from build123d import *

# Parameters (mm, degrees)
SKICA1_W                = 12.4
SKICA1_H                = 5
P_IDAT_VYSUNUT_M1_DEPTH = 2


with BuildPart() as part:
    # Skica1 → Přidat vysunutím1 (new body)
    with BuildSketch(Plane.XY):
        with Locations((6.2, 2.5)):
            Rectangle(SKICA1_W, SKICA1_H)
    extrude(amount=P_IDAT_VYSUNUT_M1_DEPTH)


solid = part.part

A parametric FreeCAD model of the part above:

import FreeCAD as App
import Part
import Sketcher

V = App.Vector

doc = App.newDocument("Part")
params = doc.addObject("Spreadsheet::Sheet", "Params")
for row, (alias, value) in enumerate([
    ("sketch1_height", "5 mm"),
    ("sketch1_width", "12.4 mm"),
    ("pad1_length", "2 mm"),
], start=1):
    params.set(f"A{row}", alias)
    params.set(f"B{row}", "=" + value)
    params.setAlias(f"B{row}", alias)

body = doc.addObject("PartDesign::Body", "Body")

# Sketch on XY plane
sketch1 = body.newObject("Sketcher::SketchObject", "Sketch")
sketch1.AttachmentSupport = (doc.getObject("XY_Plane"), [""])
sketch1.MapMode = "FlatFace"
sketch1.addGeometry([
    Part.LineSegment(V(0, 5, 0), V(0, 0, 0)),
    Part.LineSegment(V(0, 0, 0), V(12, 0, 0)),
    Part.LineSegment(V(12, 0, 0), V(12, 5, 0)),
    Part.LineSegment(V(12, 5, 0), V(0, 5, 0)),
], False)
sketch1.addConstraint([
    Sketcher.Constraint("Coincident", 0, 2, 1, 1),
    Sketcher.Constraint("Coincident", 1, 2, 2, 1),
    Sketcher.Constraint("Coincident", 2, 2, 3, 1),
    Sketcher.Constraint("Coincident", 3, 2, 0, 1),
    Sketcher.Constraint("Vertical", 0),
    Sketcher.Constraint("Horizontal", 1),
    Sketcher.Constraint("Vertical", 2),
    Sketcher.Constraint("Horizontal", 3),
    Sketcher.Constraint("Coincident", 0, 2, -1, 1),
    Sketcher.Constraint("DistanceY", 0, 2, 0, 1, 5.0),
    Sketcher.Constraint("DistanceX", 1, 1, 1, 2, 12.4),
])
sketch1.setExpression("Constraints[9]", "Params.sketch1_height")
sketch1.setExpression("Constraints[10]", "Params.sketch1_width")
pad1 = body.newObject("PartDesign::Pad", "Pad")
pad1.Profile = sketch1
pad1.setExpression("Length", "Params.pad1_length")

doc.recompute()
